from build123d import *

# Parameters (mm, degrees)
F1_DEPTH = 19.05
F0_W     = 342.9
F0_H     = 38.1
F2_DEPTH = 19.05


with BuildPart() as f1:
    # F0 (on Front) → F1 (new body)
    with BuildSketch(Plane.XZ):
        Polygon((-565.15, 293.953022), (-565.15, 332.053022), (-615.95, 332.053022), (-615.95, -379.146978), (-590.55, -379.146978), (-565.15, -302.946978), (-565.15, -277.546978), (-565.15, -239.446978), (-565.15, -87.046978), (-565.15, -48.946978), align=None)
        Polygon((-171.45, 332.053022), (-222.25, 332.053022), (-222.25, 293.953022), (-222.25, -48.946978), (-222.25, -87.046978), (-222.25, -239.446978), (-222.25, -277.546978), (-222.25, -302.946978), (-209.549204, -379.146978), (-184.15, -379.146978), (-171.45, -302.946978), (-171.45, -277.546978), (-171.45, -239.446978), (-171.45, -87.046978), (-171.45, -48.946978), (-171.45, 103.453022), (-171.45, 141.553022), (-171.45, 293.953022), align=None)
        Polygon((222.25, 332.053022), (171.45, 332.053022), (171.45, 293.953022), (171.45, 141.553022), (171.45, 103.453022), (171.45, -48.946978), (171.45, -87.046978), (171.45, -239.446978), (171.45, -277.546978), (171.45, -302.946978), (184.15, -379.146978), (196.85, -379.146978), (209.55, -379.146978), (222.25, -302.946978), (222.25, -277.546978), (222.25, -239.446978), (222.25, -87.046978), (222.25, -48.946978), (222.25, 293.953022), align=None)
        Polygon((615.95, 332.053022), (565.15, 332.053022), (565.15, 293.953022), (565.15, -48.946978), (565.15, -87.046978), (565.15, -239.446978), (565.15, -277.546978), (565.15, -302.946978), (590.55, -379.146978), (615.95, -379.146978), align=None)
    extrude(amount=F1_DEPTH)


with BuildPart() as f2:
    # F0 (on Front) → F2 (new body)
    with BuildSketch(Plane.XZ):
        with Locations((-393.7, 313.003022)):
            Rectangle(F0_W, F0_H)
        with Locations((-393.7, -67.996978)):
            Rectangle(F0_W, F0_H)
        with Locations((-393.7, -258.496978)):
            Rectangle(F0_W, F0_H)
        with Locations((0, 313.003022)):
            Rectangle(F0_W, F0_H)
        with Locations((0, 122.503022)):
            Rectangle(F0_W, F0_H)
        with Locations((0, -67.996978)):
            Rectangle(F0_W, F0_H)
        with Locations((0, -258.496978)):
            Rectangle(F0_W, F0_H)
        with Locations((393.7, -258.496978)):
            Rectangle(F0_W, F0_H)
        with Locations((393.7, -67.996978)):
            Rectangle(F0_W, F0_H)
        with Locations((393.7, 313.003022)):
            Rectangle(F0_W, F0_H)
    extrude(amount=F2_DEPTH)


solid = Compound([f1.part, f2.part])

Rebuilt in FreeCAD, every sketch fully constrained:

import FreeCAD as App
import Part
import Sketcher
Q = App.Units.Quantity


def add_polygon(sketch, points):
    """Adds a closed chain of lines whose ends are joined by coincident constraints."""
    first, n = sketch.GeometryCount, len(points)
    for a, b in zip(points, points[1:] + points[:1]):
        sketch.addGeometry(Part.LineSegment(App.Vector(*a, 0), App.Vector(*b, 0)), False)
    for i in range(n):
        sketch.addConstraint(Sketcher.Constraint("Coincident", first + i, 2, first + (i + 1) % n, 1))

doc = App.newDocument("Part")
body = doc.addObject("PartDesign::Body", "Body")
body.AllowCompound = True

# Sketch on XZ plane
sketch1 = body.newObject("Sketcher::SketchObject", "Sketch")
sketch1.AttachmentSupport = (doc.getObject("XZ_Plane"), [""])
sketch1.MapMode = "FlatFace"
add_polygon(sketch1, [(-565, 332), (-616, 332), (-616, -379), (-591, -379), (-565, -303)])  # lines 0-4
add_polygon(sketch1, [(-171, 332), (-222, 332), (-222, -303), (-210, -379), (-184, -379), (-171, -303)])  # lines 5-10
add_polygon(sketch1, [(222, 332), (171, 332), (171, -303), (184, -379), (210, -379), (222, -303)])  # lines 11-16
add_polygon(sketch1, [(616, 332), (565, 332), (565, -303), (591, -379), (616, -379)])  # lines 17-21
sketch1.addConstraint(Sketcher.Constraint("Horizontal", 0))
sketch1.addConstraint(Sketcher.Constraint("Vertical", 1))
sketch1.addConstraint(Sketcher.Constraint("Horizontal", 2))
sketch1.addConstraint(Sketcher.Constraint("Vertical", 4))
sketch1.addConstraint(Sketcher.Constraint("Horizontal", 5))
sketch1.addConstraint(Sketcher.Constraint("Vertical", 6))
sketch1.addConstraint(Sketcher.Constraint("Horizontal", 8))
sketch1.addConstraint(Sketcher.Constraint("Vertical", 10))
sketch1.addConstraint(Sketcher.Constraint("Horizontal", 11))
sketch1.addConstraint(Sketcher.Constraint("Vertical", 12))
sketch1.addConstraint(Sketcher.Constraint("Horizontal", 14))
sketch1.addConstraint(Sketcher.Constraint("Vertical", 16))
sketch1.addConstraint(Sketcher.Constraint("Horizontal", 17))
sketch1.addConstraint(Sketcher.Constraint("Vertical", 18))
sketch1.addConstraint(Sketcher.Constraint("Horizontal", 20))
sketch1.addConstraint(Sketcher.Constraint("Vertical", 21))
sketch1.addConstraint(Sketcher.Constraint("Symmetric", 10, 2, 11, 2, -2))
sketch1.addConstraint(Sketcher.Constraint("Symmetric", 8, 2, 13, 2, -2))
sketch1.addConstraint(Sketcher.Constraint("Symmetric", 6, 2, 15, 2, -2))
sketch1.addConstraint(Sketcher.Constraint("Symmetric", 4, 2, 17, 2, -2))
sketch1.addConstraint(Sketcher.Constraint("Symmetric", 2, 2, 19, 2, -2))
sketch1.addConstraint(Sketcher.Constraint("Parallel", 9, 15))
sketch1.addConstraint(Sketcher.Constraint("Horizontal", 4, 2, 5, 2))
sketch1.addConstraint(Sketcher.Constraint("Horizontal", 3, 2, 6, 2))
sketch1.addConstraint(Sketcher.Constraint("Horizontal", 2, 2, 7, 2))
sketch1.addConstraint(Sketcher.Constraint("Horizontal", 6, 2, 9, 2))
sketch1.addConstraint(Sketcher.Constraint("Horizontal", 9, 2, 12, 2))
sketch1.addConstraint(Sketcher.Constraint("Horizontal", 15, 2, 18, 2))
sketch1.addConstraint(Sketcher.Constraint("Equal", 0, 5))
sketch1.addConstraint(Sketcher.Constraint("Equal", 2, 14))
sketch1.addConstraint(Sketcher.Constraint("Equal", 11, 17))
sketch1.addConstraint(Sketcher.Constraint("DistanceX", 0, 2, 0, 1, Q("2 in")))
sketch1.addConstraint(Sketcher.Constraint("DistanceX", 2, 1, 2, 2, Q("1 in")))
sketch1.addConstraint(Sketcher.Constraint("DistanceY", 1, 2, 1, 1, Q("28 in")))
sketch1.addConstraint(Sketcher.Constraint("DistanceY", 4, 1, 4, 2, Q("25 in")))
sketch1.addConstraint(Sketcher.Constraint("DistanceX", 3, 2, 8, 2, Q("15 in")))
sketch1.addConstraint(Sketcher.Constraint("DistanceX", 4, 2, 11, 2, Q("29 in")))
sketch1.addConstraint(Sketcher.Constraint("DistanceX", 8, 1, 8, 2, 25.399204))
sketch1.addConstraint(Sketcher.Constraint("DistanceY", -1, 1, 0, 2, 332.053022))
pad1 = body.newObject("PartDesign::Pad", "Pad")
pad1.Profile = sketch1
pad1.Length = Q("0.75 in")
body2 = doc.addObject("PartDesign::Body", "Body001")
body2.AllowCompound = True

# Sketch on XZ plane
sketch2 = body2.newObject("Sketcher::SketchObject", "Sketch001")
sketch2.AttachmentSupport = (doc.getObject("XZ_Plane001"), [""])
sketch2.MapMode = "FlatFace"
add_polygon(sketch2, [(-565, 332), (-565, 294), (-222, 294), (-222, 332)])  # lines 0-3
add_polygon(sketch2, [(-565, -49), (-565, -87), (-222, -87), (-222, -49)])  # lines 4-7
add_polygon(sketch2, [(-565, -239), (-565, -278), (-222, -278), (-222, -239)])  # lines 8-11
add_polygon(sketch2, [(-171, 332), (-171, 294), (171, 294), (171, 332)])  # lines 12-15
add_polygon(sketch2, [(-171, 142), (-171, 103), (171, 103), (171, 142)])  # lines 16-19
add_polygon(sketch2, [(-171, -49), (-171, -87), (171, -87), (171, -49)])  # lines 20-23
add_polygon(sketch2, [(-171, -239), (-171, -278), (171, -278), (171, -239)])  # lines 24-27
add_polygon(sketch2, [(222, -239), (222, -278), (565, -278), (565, -239)])  # lines 28-31
add_polygon(sketch2, [(222, -49), (222, -87), (565, -87), (565, -49)])  # lines 32-35
add_polygon(sketch2, [(222, 332), (222, 294), (565, 294), (565, 332)])  # lines 36-39
sketch2.addConstraint(Sketcher.Constraint("Vertical", 0))
sketch2.addConstraint(Sketcher.Constraint("Horizontal", 1))
sketch2.addConstraint(Sketcher.Constraint("Vertical", 2))
sketch2.addConstraint(Sketcher.Constraint("Horizontal", 3))
sketch2.addConstraint(Sketcher.Constraint("Vertical", 4))
sketch2.addConstraint(Sketcher.Constraint("Horizontal", 5))
sketch2.addConstraint(Sketcher.Constraint("Vertical", 6))
sketch2.addConstraint(Sketcher.Constraint("Horizontal", 7))
sketch2.addConstraint(Sketcher.Constraint("Vertical", 8))
sketch2.addConstraint(Sketcher.Constraint("Horizontal", 9))
sketch2.addConstraint(Sketcher.Constraint("Vertical", 10))
sketch2.addConstraint(Sketcher.Constraint("Horizontal", 11))
sketch2.addConstraint(Sketcher.Constraint("Vertical", 12))
sketch2.addConstraint(Sketcher.Constraint("Horizontal", 13))
sketch2.addConstraint(Sketcher.Constraint("Vertical", 14))
sketch2.addConstraint(Sketcher.Constraint("Horizontal", 15))
sketch2.addConstraint(Sketcher.Constraint("Vertical", 16))
sketch2.addConstraint(Sketcher.Constraint("Horizontal", 17))
sketch2.addConstraint(Sketcher.Constraint("Vertical", 18))
sketch2.addConstraint(Sketcher.Constraint("Horizontal", 19))
sketch2.addConstraint(Sketcher.Constraint("Vertical", 20))
sketch2.addConstraint(Sketcher.Constraint("Horizontal", 21))
sketch2.addConstraint(Sketcher.Constraint("Vertical", 22))
sketch2.addConstraint(Sketcher.Constraint("Horizontal", 23))
sketch2.addConstraint(Sketcher.Constraint("Vertical", 24))
sketch2.addConstraint(Sketcher.Constraint("Horizontal", 25))
sketch2.addConstraint(Sketcher.Constraint("Vertical", 26))
sketch2.addConstraint(Sketcher.Constraint("Horizontal", 27))
sketch2.addConstraint(Sketcher.Constraint("Vertical", 28))
sketch2.addConstraint(Sketcher.Constraint("Horizontal", 29))
sketch2.addConstraint(Sketcher.Constraint("Vertical", 30))
sketch2.addConstraint(Sketcher.Constraint("Horizontal", 31))
sketch2.addConstraint(Sketcher.Constraint("Vertical", 32))
sketch2.addConstraint(Sketcher.Constraint("Horizontal", 33))
sketch2.addConstraint(Sketcher.Constraint("Vertical", 34))
sketch2.addConstraint(Sketcher.Constraint("Horizontal", 35))
sketch2.addConstraint(Sketcher.Constraint("Vertical", 36))
sketch2.addConstraint(Sketcher.Constraint("Horizontal", 37))
sketch2.addConstraint(Sketcher.Constraint("Vertical", 38))
sketch2.addConstraint(Sketcher.Constraint("Horizontal", 39))
sketch2.addConstraint(Sketcher.Constraint("Symmetric", 9, 2, 28, 2, -2))
sketch2.addConstraint(Sketcher.Constraint("Symmetric", 11, 2, 30, 2, -2))
sketch2.addConstraint(Sketcher.Constraint("Symmetric", 5, 2, 32, 2, -2))
sketch2.addConstraint(Sketcher.Constraint("Symmetric", 7, 2, 34, 2, -2))
sketch2.addConstraint(Sketcher.Constraint("Symmetric", 1, 2, 36, 2, -2))
sketch2.addConstraint(Sketcher.Constraint("Symmetric", 3, 2, 38, 2, -2))
sketch2.addConstraint(Sketcher.Constraint("Horizontal", 1, 2, 12, 2))
sketch2.addConstraint(Sketcher.Constraint("Horizontal", 3, 2, 14, 2))
sketch2.addConstraint(Sketcher.Constraint("Horizontal", 5, 2, 20, 2))
sketch2.addConstraint(Sketcher.Constraint("Horizontal", 7, 2, 22, 2))
sketch2.addConstraint(Sketcher.Constraint("Horizontal", 9, 2, 24, 2))
sketch2.addConstraint(Sketcher.Constraint("Horizontal", 11, 2, 26, 2))
sketch2.addConstraint(Sketcher.Constraint("Vertical", 3, 2, 4, 2))
sketch2.addConstraint(Sketcher.Constraint("Vertical", 2, 2, 5, 2))
sketch2.addConstraint(Sketcher.Constraint("Vertical", 7, 2, 8, 2))
sketch2.addConstraint(Sketcher.Constraint("Vertical", 6, 2, 9, 2))
sketch2.addConstraint(Sketcher.Constraint("Vertical", 15, 2, 16, 2))
sketch2.addConstraint(Sketcher.Constraint("Vertical", 14, 2, 17, 2))
sketch2.addConstraint(Sketcher.Constraint("Vertical", 19, 2, 20, 2))
sketch2.addConstraint(Sketcher.Constraint("Vertical", 18, 2, 21, 2))
sketch2.addConstraint(Sketcher.Constraint("Vertical", 23, 2, 24, 2))
sketch2.addConstraint(Sketcher.Constraint("Vertical", 22, 2, 25, 2))
sketch2.addConstraint(Sketcher.Constraint("Equal", 11, 13))
sketch2.addConstraint(Sketcher.Constraint("Equal", 2, 4))
sketch2.addConstraint(Sketcher.Constraint("Equal", 6, 8))
sketch2.addConstraint(Sketcher.Constraint("Equal", 14, 16))
sketch2.addConstraint(Sketcher.Constraint("DistanceX", 1, 1, 1, 2, Q("13.5 in")))
sketch2.addConstraint(Sketcher.Constraint("DistanceY", 0, 2, 0, 1, Q("1.5 in")))
sketch2.addConstraint(Sketcher.Constraint("DistanceY", 4, 2, 0, 2, Q("15 in")))
sketch2.addConstraint(Sketcher.Constraint("DistanceY", 8, 2, 7, 2, Q("9 in")))
sketch2.addConstraint(Sketcher.Constraint("DistanceX", 1, 2, 12, 2, Q("2 in")))
sketch2.addConstraint(Sketcher.Constraint("DistanceY", 6, 2, 16, 2, Q("6 in")))
sketch2.addConstraint(Sketcher.Constraint("DistanceX", 25, 2, 28, 2, Q("2 in")))
sketch2.addConstraint(Sketcher.Constraint("DistanceY", -1, 1, 0, 2, 293.953022))
pad2 = body2.newObject("PartDesign::Pad", "Pad001")
pad2.Profile = sketch2
pad2.Length = Q("0.75 in")

doc.recompute()
